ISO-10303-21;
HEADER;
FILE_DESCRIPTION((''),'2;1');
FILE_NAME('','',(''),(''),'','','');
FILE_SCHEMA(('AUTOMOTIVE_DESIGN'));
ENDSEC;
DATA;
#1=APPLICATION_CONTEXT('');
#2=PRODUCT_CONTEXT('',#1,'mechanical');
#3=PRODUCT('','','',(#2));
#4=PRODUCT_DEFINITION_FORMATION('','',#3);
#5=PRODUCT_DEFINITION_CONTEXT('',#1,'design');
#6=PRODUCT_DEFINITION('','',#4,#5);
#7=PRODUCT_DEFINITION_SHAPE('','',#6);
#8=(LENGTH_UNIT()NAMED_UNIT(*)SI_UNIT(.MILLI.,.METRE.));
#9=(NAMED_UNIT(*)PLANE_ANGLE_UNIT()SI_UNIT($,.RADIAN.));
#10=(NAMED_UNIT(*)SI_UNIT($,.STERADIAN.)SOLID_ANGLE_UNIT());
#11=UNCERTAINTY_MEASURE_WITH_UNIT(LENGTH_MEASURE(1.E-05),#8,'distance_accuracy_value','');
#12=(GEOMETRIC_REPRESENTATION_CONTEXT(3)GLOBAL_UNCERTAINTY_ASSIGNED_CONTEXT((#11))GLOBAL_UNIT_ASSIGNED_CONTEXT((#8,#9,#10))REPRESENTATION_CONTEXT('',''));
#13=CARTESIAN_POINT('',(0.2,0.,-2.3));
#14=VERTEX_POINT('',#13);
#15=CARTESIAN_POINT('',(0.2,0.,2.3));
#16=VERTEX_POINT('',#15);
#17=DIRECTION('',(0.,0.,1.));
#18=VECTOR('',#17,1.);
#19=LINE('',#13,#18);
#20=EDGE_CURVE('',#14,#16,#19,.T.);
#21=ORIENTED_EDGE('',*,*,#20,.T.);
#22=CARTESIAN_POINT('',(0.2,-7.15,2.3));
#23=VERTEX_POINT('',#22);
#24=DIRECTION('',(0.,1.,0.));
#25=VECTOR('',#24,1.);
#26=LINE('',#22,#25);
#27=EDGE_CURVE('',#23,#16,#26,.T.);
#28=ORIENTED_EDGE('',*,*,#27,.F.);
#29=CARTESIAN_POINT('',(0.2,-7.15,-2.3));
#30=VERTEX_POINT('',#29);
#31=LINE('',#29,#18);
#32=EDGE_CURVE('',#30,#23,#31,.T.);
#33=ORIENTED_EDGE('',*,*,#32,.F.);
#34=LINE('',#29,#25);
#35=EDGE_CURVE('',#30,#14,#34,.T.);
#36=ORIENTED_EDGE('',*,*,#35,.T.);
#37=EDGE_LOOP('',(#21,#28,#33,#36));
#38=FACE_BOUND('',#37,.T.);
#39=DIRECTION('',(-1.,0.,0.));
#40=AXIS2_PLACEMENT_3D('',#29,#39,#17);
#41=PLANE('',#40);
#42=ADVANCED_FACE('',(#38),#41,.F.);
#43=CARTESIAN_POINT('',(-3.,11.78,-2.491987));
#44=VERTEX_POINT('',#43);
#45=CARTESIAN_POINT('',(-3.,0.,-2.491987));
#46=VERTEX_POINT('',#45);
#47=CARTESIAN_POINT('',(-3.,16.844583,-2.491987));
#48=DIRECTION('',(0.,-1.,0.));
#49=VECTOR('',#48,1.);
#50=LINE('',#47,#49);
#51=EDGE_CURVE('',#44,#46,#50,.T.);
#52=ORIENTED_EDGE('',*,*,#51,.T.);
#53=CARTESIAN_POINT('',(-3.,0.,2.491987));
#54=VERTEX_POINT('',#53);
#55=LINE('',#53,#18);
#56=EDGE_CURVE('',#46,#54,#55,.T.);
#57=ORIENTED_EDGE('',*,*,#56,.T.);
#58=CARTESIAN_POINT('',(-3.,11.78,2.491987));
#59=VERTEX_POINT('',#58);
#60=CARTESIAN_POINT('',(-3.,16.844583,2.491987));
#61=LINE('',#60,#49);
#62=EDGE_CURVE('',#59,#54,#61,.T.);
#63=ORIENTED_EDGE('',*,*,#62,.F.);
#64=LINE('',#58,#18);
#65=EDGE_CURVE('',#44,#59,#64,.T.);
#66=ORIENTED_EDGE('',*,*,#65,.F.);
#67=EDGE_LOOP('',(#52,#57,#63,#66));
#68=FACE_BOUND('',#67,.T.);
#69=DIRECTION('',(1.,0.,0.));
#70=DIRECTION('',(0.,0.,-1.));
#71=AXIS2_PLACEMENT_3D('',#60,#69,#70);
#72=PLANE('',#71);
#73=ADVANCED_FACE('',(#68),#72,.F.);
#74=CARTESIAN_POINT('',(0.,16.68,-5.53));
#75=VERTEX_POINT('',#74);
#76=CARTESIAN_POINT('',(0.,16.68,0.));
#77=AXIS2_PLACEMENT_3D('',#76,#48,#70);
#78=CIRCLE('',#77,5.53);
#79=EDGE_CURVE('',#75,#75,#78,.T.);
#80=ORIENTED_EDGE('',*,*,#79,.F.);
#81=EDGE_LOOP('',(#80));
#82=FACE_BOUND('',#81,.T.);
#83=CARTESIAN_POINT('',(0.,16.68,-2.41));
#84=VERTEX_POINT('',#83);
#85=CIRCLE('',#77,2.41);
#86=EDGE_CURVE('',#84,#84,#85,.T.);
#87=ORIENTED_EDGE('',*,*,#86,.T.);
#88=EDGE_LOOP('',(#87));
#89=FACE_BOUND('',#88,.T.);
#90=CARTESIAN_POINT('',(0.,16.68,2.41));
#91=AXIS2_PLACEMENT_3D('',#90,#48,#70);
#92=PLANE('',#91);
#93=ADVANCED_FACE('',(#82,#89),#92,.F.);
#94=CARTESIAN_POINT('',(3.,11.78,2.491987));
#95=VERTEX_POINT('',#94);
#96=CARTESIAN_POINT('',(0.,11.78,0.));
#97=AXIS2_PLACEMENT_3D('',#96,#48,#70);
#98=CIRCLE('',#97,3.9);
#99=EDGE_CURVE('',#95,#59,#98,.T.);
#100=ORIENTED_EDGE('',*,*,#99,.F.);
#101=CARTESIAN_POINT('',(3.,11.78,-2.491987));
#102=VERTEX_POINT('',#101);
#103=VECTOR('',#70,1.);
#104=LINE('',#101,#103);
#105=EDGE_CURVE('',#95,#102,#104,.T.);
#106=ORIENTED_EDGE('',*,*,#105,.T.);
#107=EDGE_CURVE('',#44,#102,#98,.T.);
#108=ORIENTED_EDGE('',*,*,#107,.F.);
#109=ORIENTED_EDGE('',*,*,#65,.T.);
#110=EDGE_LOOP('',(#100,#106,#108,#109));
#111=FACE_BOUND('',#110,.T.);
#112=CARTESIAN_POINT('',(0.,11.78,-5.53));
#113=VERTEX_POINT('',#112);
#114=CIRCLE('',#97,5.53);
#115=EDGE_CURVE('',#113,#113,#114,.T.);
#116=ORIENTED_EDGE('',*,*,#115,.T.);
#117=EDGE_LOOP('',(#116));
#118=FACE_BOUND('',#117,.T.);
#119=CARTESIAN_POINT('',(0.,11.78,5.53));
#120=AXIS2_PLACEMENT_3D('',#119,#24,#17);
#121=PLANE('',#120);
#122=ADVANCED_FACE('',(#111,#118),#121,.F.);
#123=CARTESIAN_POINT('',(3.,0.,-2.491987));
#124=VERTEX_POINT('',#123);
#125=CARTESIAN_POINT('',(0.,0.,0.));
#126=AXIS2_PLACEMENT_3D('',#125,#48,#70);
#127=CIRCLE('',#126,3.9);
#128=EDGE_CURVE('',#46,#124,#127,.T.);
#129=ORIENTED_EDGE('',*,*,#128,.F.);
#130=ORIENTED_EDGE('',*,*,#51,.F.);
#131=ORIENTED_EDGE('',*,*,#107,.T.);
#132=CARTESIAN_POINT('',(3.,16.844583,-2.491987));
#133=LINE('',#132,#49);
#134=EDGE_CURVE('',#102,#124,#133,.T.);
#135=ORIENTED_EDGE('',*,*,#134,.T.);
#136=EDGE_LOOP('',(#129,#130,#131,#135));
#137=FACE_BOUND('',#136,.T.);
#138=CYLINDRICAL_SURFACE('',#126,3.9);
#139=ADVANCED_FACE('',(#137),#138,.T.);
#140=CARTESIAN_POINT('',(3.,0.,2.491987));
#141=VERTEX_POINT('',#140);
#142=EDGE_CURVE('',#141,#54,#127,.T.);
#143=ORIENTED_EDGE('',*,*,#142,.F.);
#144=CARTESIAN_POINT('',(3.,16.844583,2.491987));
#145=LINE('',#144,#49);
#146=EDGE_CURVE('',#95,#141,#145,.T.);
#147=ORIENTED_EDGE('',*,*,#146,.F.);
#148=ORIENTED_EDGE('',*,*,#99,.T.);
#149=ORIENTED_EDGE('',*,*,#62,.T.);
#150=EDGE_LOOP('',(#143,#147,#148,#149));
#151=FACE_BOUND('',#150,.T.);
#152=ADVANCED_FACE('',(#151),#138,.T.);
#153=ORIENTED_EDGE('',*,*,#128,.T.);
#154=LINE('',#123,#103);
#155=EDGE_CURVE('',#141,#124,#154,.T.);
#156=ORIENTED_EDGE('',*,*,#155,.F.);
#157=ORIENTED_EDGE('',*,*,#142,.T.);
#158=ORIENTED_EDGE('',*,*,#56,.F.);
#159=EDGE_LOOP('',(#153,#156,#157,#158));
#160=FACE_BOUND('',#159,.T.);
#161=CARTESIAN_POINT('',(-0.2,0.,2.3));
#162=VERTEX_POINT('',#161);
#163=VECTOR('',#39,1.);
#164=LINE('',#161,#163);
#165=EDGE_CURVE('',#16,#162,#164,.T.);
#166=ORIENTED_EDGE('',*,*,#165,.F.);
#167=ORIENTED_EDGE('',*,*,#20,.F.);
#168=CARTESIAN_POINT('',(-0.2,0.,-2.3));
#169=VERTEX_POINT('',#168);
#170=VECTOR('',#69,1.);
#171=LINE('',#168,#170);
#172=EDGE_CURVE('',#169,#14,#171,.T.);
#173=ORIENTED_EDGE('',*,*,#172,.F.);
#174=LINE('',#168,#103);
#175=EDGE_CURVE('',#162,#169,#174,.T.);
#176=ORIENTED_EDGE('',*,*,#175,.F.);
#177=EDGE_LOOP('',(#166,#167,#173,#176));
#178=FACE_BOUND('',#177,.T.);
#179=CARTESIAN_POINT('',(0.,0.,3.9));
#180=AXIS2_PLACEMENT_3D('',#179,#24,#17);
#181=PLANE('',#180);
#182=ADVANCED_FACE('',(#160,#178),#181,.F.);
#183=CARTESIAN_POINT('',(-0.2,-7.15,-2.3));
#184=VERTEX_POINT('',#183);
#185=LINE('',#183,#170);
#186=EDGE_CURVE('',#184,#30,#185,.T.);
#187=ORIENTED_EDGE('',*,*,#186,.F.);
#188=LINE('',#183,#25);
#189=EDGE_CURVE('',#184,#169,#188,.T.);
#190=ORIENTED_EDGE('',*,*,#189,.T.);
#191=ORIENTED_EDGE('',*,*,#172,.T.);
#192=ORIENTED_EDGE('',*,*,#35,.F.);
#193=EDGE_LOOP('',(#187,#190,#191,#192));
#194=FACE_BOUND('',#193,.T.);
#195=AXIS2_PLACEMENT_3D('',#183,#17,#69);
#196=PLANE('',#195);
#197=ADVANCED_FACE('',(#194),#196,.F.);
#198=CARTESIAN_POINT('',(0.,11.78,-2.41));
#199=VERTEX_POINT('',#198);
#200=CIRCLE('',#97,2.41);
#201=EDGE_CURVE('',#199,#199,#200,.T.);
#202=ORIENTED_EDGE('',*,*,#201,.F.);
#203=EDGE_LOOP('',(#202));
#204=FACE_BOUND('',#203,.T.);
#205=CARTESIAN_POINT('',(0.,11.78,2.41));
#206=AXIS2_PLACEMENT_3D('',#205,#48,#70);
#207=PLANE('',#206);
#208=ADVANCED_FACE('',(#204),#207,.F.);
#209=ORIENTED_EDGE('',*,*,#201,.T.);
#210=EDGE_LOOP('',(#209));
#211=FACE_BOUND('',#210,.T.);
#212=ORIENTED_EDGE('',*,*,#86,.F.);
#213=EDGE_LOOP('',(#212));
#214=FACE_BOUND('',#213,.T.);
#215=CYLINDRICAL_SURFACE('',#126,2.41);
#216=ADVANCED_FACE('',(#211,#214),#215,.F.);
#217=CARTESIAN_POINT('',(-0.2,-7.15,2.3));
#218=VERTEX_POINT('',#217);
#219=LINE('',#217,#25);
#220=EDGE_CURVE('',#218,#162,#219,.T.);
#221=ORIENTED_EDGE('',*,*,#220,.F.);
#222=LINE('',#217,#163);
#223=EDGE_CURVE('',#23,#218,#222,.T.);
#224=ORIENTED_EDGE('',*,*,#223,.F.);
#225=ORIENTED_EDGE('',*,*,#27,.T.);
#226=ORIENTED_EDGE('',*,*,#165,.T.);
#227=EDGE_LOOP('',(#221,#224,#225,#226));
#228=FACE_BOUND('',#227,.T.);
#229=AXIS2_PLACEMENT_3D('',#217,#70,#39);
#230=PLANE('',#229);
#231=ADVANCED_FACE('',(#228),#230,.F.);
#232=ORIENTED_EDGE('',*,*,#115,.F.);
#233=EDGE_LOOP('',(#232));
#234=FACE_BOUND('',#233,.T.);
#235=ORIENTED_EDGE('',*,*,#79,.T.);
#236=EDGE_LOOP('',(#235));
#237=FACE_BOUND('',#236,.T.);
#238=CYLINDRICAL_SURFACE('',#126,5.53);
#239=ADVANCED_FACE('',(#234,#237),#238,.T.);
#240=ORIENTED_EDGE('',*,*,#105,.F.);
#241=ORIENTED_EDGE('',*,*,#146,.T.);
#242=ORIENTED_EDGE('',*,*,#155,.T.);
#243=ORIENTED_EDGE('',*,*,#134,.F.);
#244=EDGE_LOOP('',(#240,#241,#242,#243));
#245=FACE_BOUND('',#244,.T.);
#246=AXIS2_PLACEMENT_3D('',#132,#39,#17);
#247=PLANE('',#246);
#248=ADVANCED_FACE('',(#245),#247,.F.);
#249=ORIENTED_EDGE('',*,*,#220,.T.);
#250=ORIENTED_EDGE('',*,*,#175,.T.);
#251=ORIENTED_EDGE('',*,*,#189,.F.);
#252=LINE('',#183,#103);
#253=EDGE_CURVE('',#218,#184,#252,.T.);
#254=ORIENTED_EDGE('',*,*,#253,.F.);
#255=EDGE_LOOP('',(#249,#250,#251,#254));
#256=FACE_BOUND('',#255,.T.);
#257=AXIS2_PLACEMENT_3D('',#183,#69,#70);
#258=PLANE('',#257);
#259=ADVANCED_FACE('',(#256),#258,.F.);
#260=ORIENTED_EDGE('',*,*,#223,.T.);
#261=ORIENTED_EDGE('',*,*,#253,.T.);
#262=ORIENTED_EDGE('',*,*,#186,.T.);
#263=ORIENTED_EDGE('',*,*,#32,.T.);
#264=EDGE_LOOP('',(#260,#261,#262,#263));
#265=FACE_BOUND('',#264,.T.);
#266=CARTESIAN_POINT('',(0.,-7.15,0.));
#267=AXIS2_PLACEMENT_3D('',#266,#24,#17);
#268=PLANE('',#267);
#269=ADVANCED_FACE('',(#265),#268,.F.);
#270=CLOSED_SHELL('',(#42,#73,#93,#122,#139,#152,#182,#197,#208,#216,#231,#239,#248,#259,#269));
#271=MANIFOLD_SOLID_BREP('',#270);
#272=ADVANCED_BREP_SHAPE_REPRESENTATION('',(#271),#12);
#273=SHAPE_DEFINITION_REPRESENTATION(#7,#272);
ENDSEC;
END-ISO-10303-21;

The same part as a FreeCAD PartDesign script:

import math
import FreeCAD as App
import Part
import Sketcher

doc = App.newDocument("Part")
body = doc.addObject("PartDesign::Body", "Body")

# Sketch on YZ plane
sketch1 = doc.addObject("Sketcher::SketchObject", "Sketch")
body.addObject(sketch1)
sketch1.AttachmentSupport = (doc.YZ_Plane, [""])
sketch1.MapMode = "FlatFace"
sketch1.addGeometry([
    Part.LineSegment(App.Vector(16.68, 2.41, 0), App.Vector(16.68, 5.53, 0)),  # 0
    Part.LineSegment(App.Vector(16.68, 5.53, 0), App.Vector(11.78, 5.53, 0)),  # 1
    Part.LineSegment(App.Vector(11.78, 5.53, 0), App.Vector(11.78, 3.9, 0)),  # 2
    Part.LineSegment(App.Vector(11.78, 3.9, 0), App.Vector(0, 3.9, 0)),  # 3
    Part.LineSegment(App.Vector(0, 3.9, 0), App.Vector(0, 0, 0)),  # 4
    Part.LineSegment(App.Vector(0, 0, 0), App.Vector(11.78, 0, 0)),  # 5
    Part.LineSegment(App.Vector(11.78, 0, 0), App.Vector(11.78, 2.41, 0)),  # 6
    Part.LineSegment(App.Vector(11.78, 2.41, 0), App.Vector(16.68, 2.41, 0)),  # 7
], False)
sketch1.addConstraint([
    Sketcher.Constraint("Coincident", 0, 2, 1, 1),
    Sketcher.Constraint("Coincident", 1, 2, 2, 1),
    Sketcher.Constraint("Coincident", 2, 2, 3, 1),
    Sketcher.Constraint("Coincident", 3, 2, 4, 1),
    Sketcher.Constraint("Coincident", 4, 2, 5, 1),
    Sketcher.Constraint("Coincident", 5, 2, 6, 1),
    Sketcher.Constraint("Coincident", 6, 2, 7, 1),
    Sketcher.Constraint("Coincident", 7, 2, 0, 1),
    Sketcher.Constraint("Vertical", 0),
    Sketcher.Constraint("Horizontal", 1),
    Sketcher.Constraint("Vertical", 2),
    Sketcher.Constraint("Horizontal", 3),
    Sketcher.Constraint("Vertical", 4),
    Sketcher.Constraint("Horizontal", 5),
    Sketcher.Constraint("Vertical", 6),
    Sketcher.Constraint("Horizontal", 7),
    Sketcher.Constraint("Coincident", 4, 2, -1, 1),
    Sketcher.Constraint("Vertical", 2, 2, 5, 2),
    Sketcher.Constraint("DistanceX", 1, 2, 1, 1, 4.9),
    Sketcher.Constraint("DistanceY", 4, 2, 4, 1, 3.9),
    Sketcher.Constraint("DistanceX", 3, 2, 3, 1, 11.78),
    Sketcher.Constraint("DistanceY", 0, 1, 0, 2, 3.12),
    Sketcher.Constraint("DistanceY", 2, 2, 2, 1, 1.63),
])
revolution = doc.addObject("PartDesign::Revolution", "Revolution")
body.addObject(revolution)
revolution.Profile = sketch1
revolution.ReferenceAxis = (sketch1, ["H_Axis"])
revolution.Angle = 360

# Sketch on XZ plane
sketch2 = doc.addObject("Sketcher::SketchObject", "Sketch001")
body.addObject(sketch2)
sketch2.AttachmentSupport = (doc.XZ_Plane, [""])
sketch2.MapMode = "FlatFace"
sketch2.addGeometry([
    Part.LineSegment(App.Vector(3, 2.491987, 0), App.Vector(3, -2.491987, 0)),
    Part.ArcOfCircle(Part.Circle(App.Vector(0, 0, 0), App.Vector(0, 0, 1), 3.9), math.radians(-39.715137), math.radians(39.715137)),
    Part.LineSegment(App.Vector(-3, -2.491987, 0), App.Vector(-3, 2.491987, 0)),
    Part.ArcOfCircle(Part.Circle(App.Vector(0, 0, 0), App.Vector(0, 0, 1), 3.9), math.radians(140.284863), math.radians(219.715137)),
], False)
sketch2.addConstraint([
    Sketcher.Constraint("Coincident", 0, 1, 1, 2),
    Sketcher.Constraint("Coincident", 1, 1, 0, 2),
    Sketcher.Constraint("Coincident", 2, 1, 3, 2),
    Sketcher.Constraint("Coincident", 3, 1, 2, 2),
    Sketcher.Constraint("Vertical", 0),
    Sketcher.Constraint("Vertical", 2),
    Sketcher.Constraint("Coincident", 1, 3, -1, 1),
    Sketcher.Constraint("Coincident", 3, 3, -1, 1),
    Sketcher.Constraint("Equal", 1, 3),
    Sketcher.Constraint("Horizontal", 1, 1, 2, 1),
    Sketcher.Constraint("Radius", 1, 3.9),
    Sketcher.Constraint("DistanceX", -1, 1, 0, 1, 3.0),
])
pocket1 = doc.addObject("PartDesign::Pocket", "Pocket")
body.addObject(pocket1)
pocket1.Profile = sketch2
pocket1.Length = 11.78

# Sketch on XZ plane
sketch3 = doc.addObject("Sketcher::SketchObject", "Sketch002")
body.addObject(sketch3)
sketch3.AttachmentSupport = (doc.XZ_Plane, [""])
sketch3.MapMode = "FlatFace"
sketch3.addGeometry([
    Part.LineSegment(App.Vector(-0.2, 2.3, 0), App.Vector(-0.2, -2.3, 0)),
    Part.LineSegment(App.Vector(-0.2, -2.3, 0), App.Vector(0.2, -2.3, 0)),
    Part.LineSegment(App.Vector(0.2, -2.3, 0), App.Vector(0.2, 2.3, 0)),
    Part.LineSegment(App.Vector(0.2, 2.3, 0), App.Vector(-0.2, 2.3, 0)),
], False)
sketch3.addConstraint([
    Sketcher.Constraint("Coincident", 0, 2, 1, 1),
    Sketcher.Constraint("Coincident", 1, 2, 2, 1),
    Sketcher.Constraint("Coincident", 2, 2, 3, 1),
    Sketcher.Constraint("Coincident", 3, 2, 0, 1),
    Sketcher.Constraint("Vertical", 0),
    Sketcher.Constraint("Horizontal", 1),
    Sketcher.Constraint("Vertical", 2),
    Sketcher.Constraint("Horizontal", 3),
    Sketcher.Constraint("Symmetric", 0, 2, 2, 2, -1, 1),
    Sketcher.Constraint("DistanceX", 1, 1, 1, 2, 0.4),
    Sketcher.Constraint("DistanceY", 0, 2, 0, 1, 4.6),
])
pad1 = doc.addObject("PartDesign::Pad", "Pad")
body.addObject(pad1)
pad1.Profile = sketch3
pad1.Length = 7.15

doc.recompute()
